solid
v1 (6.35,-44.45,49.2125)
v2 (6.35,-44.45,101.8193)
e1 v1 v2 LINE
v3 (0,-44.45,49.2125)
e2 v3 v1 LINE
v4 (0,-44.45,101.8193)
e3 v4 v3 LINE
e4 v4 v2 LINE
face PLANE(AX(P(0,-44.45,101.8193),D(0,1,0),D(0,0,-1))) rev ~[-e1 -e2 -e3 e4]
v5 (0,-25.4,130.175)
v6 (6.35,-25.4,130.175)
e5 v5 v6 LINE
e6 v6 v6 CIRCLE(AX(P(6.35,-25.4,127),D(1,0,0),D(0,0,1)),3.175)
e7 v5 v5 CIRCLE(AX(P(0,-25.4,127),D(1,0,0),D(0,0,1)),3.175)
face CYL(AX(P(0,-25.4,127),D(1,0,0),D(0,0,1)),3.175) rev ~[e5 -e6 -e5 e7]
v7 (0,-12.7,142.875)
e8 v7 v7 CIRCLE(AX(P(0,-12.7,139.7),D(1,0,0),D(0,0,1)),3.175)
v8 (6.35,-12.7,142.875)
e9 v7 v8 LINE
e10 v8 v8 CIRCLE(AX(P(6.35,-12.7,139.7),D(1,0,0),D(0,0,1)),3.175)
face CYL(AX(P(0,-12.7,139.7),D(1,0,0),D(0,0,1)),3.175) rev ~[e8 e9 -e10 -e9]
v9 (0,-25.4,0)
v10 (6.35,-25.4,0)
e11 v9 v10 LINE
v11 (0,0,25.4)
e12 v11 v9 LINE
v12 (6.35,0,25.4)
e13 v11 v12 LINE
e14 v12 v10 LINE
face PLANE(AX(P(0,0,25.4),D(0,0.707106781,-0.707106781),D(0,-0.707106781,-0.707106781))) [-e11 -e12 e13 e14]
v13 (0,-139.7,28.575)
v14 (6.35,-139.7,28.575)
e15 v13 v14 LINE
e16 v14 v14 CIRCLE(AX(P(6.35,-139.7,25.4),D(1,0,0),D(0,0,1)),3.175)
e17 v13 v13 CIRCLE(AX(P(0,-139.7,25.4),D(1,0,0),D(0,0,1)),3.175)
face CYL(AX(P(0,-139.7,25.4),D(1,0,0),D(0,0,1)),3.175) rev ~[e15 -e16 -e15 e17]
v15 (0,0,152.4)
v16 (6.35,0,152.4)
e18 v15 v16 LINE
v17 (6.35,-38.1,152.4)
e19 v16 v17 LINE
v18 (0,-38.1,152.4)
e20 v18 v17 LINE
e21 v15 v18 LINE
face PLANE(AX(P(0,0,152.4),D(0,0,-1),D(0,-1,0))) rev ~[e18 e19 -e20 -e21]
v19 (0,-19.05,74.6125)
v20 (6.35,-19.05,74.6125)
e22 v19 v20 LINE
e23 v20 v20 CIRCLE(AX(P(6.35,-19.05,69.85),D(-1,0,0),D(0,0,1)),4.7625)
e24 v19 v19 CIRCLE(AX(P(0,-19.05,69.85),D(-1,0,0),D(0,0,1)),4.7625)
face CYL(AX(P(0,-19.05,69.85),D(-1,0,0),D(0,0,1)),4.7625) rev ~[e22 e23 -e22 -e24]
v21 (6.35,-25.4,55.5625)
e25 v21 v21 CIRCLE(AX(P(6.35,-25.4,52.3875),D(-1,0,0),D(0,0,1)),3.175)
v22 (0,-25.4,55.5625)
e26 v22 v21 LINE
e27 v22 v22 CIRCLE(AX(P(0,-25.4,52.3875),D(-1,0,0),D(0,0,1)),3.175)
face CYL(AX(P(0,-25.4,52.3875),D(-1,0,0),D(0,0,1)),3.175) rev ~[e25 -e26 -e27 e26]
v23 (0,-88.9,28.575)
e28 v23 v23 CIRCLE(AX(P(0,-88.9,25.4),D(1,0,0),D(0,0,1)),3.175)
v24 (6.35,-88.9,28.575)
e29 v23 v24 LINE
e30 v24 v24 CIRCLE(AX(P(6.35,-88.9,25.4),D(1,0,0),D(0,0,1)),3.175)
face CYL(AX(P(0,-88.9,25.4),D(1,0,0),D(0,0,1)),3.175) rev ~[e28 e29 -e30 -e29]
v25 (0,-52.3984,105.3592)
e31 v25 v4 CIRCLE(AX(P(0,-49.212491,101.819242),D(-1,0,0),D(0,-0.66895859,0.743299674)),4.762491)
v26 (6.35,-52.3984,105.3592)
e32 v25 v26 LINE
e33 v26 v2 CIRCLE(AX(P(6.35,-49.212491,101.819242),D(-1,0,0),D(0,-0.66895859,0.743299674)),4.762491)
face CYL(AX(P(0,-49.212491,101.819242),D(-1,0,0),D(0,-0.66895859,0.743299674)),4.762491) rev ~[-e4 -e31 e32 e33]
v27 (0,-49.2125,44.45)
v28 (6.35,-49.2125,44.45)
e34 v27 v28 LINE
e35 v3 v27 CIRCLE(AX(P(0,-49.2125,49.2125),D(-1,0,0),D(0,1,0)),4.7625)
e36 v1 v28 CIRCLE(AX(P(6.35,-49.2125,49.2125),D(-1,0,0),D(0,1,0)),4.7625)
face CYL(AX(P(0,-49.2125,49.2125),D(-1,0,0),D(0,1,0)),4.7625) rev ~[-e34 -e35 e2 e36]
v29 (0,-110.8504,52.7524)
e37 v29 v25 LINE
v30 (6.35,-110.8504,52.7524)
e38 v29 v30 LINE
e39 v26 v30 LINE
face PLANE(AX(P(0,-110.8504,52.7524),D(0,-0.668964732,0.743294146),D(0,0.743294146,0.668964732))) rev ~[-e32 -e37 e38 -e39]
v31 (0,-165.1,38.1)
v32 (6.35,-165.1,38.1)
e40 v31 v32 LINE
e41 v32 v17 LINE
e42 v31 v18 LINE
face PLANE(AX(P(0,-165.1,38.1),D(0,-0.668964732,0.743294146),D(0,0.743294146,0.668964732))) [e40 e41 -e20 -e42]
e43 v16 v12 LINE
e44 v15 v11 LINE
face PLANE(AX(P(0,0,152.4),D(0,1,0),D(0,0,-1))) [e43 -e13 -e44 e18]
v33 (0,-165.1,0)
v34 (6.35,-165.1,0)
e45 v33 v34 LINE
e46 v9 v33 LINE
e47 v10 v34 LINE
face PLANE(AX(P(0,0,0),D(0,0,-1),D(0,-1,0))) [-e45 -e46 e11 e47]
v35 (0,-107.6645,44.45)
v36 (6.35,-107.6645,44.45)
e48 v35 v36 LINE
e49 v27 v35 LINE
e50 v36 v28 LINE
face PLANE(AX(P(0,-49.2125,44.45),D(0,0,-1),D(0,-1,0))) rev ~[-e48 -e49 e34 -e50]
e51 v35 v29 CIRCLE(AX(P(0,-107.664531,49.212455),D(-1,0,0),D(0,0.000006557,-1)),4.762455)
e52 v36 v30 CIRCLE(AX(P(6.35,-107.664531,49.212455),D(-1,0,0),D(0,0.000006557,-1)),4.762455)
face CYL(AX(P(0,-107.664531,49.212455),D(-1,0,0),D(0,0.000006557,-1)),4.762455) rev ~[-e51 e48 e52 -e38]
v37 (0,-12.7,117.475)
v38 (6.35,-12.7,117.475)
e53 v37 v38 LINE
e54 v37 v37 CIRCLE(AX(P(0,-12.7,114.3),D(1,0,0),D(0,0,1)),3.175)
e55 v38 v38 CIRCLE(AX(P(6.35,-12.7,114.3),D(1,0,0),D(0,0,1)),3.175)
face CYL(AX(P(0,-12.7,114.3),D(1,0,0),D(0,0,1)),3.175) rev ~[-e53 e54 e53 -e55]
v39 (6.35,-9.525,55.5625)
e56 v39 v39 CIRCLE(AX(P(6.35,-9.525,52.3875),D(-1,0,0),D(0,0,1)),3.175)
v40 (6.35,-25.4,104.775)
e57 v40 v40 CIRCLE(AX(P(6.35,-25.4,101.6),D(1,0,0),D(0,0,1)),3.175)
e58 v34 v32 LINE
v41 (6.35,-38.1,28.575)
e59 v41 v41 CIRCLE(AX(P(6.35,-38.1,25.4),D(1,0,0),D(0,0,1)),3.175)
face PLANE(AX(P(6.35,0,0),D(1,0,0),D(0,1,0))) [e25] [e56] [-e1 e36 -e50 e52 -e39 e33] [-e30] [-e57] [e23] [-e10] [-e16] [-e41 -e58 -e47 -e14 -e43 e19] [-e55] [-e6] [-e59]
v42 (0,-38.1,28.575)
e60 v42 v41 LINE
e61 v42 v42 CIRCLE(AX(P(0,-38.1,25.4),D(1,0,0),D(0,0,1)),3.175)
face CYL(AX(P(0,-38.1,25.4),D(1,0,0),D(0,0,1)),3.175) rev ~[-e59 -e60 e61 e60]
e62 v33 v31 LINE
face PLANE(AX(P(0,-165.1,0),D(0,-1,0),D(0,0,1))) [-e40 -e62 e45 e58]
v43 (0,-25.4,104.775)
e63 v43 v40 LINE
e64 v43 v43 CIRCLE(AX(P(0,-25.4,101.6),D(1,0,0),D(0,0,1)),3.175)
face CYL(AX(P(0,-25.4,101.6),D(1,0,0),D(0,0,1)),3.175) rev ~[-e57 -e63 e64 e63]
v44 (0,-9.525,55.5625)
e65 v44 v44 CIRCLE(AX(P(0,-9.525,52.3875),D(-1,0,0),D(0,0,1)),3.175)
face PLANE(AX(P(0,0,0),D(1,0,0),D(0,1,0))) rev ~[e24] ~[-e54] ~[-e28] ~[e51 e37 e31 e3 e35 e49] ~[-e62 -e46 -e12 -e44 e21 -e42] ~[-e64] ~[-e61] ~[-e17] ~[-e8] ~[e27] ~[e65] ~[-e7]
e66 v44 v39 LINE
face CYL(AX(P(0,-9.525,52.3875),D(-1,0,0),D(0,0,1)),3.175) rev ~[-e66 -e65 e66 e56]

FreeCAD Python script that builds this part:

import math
import FreeCAD as App
import Part
import Sketcher

V = App.Vector
Q = App.Units.Quantity


def add_polygon(sketch, points):
    """Adds a closed chain of lines whose ends are joined by coincident constraints."""
    first, n = sketch.GeometryCount, len(points)
    for a, b in zip(points, points[1:] + points[:1]):
        sketch.addGeometry(Part.LineSegment(App.Vector(*a, 0), App.Vector(*b, 0)), False)
    for i in range(n):
        sketch.addConstraint(Sketcher.Constraint("Coincident", first + i, 2, first + (i + 1) % n, 1))

doc = App.newDocument("Part")
body = doc.addObject("PartDesign::Body", "Body")

# Sketch on YZ plane
sketch1 = body.newObject("Sketcher::SketchObject", "Sketch")
sketch1.AttachmentSupport = (doc.getObject("YZ_Plane"), [""])
sketch1.MapMode = "FlatFace"
add_polygon(sketch1, [(0, 0), (0, 152), (-38, 152), (-165, 38), (-165, 0)])  # lines 0-4
sketch1.addConstraint([
    Sketcher.Constraint("Vertical", 0),
    Sketcher.Constraint("Horizontal", 1),
    Sketcher.Constraint("Vertical", 3),
    Sketcher.Constraint("Horizontal", 4),
    Sketcher.Constraint("Coincident", 4, 2, -1, 1),
    Sketcher.Constraint("Equal", 1, 3),
    Sketcher.Constraint("DistanceY", 0, 1, 0, 2, Q("6 in")),
    Sketcher.Constraint("DistanceX", 1, 2, 1, 1, Q("1.5 in")),
    Sketcher.Constraint("DistanceX", 4, 1, 4, 2, Q("6.5 in")),
])
pad1 = body.newObject("PartDesign::Pad", "Pad")
pad1.Profile = sketch1
pad1.Length = Q("0.25 in")

# Sketch on YZ plane
sketch2 = body.newObject("Sketcher::SketchObject", "Sketch001")
sketch2.AttachmentSupport = (doc.getObject("YZ_Plane"), [""])
sketch2.MapMode = "FlatFace"
sketch2.addGeometry([
    Part.Circle(V(-139.7, 25.4, 0), V(0, 0, 1), 3.2),
    Part.Circle(V(-88.9, 25.4, 0), V(0, 0, 1), 3.2),
    Part.Circle(V(-38.1, 25.4, 0), V(0, 0, 1), 3.2),
], False)
sketch2.addConstraint([
    Sketcher.Constraint("Equal", 0, 1),
    Sketcher.Constraint("Equal", 1, 2),
    Sketcher.Constraint("Horizontal", 0, 3, 1, 3),
    Sketcher.Constraint("Horizontal", 1, 3, 2, 3),
    Sketcher.Constraint("Diameter", 0, Q("0.25 in")),
    Sketcher.Constraint("DistanceY", -1, 1, 0, 3, Q("1 in")),
    Sketcher.Constraint("DistanceX", 0, 3, 1, 3, Q("2 in")),
    Sketcher.Constraint("DistanceX", 1, 3, 2, 3, Q("2 in")),
    Sketcher.Constraint("DistanceX", 0, 3, -1, 1, Q("5.5 in")),
])
doc.recompute()
hole = body.newObject("PartDesign::Hole", "Hole")
hole.Profile = sketch2
hole.ThreadType = "None"
hole.Diameter = Q("0.25 in")
hole.DepthType = "ThroughAll"
hole.Reversed = True

# Sketch on YZ plane
sketch3 = body.newObject("Sketcher::SketchObject", "Sketch002")
sketch3.AttachmentSupport = (doc.getObject("YZ_Plane"), [""])
sketch3.MapMode = "FlatFace"
add_polygon(sketch3, [(0, 0), (-25, 0), (0, 25)])  # lines 0-2
sketch3.addConstraint([
    Sketcher.Constraint("Horizontal", 0),
    Sketcher.Constraint("Vertical", 2),
    Sketcher.Constraint("Coincident", 2, 2, -1, 1),
    Sketcher.Constraint("Equal", 0, 2),
    Sketcher.Constraint("DistanceX", 0, 2, 0, 1, Q("1 in")),
])
pocket1 = body.newObject("PartDesign::Pocket", "Pocket")
pocket1.Profile = sketch3
pocket1.Length = Q("0.25 in")
pocket1.Reversed = True

# Sketch on YZ plane
sketch4 = body.newObject("Sketcher::SketchObject", "Sketch003")
sketch4.AttachmentSupport = (doc.getObject("YZ_Plane"), [""])
sketch4.MapMode = "FlatFace"
sketch4.addGeometry([
    Part.Circle(V(-12.7, 139.7, 0), V(0, 0, 1), 3.2),
    Part.Circle(V(-25.4, 127, 0), V(0, 0, 1), 3.2),
    Part.Circle(V(-12.7, 114.3, 0), V(0, 0, 1), 3.2),
    Part.Circle(V(-25.4, 101.6, 0), V(0, 0, 1), 3.2),
], False)
sketch4.addConstraint([
    Sketcher.Constraint("Equal", 0, 1),
    Sketcher.Constraint("Equal", 1, 2),
    Sketcher.Constraint("Equal", 2, 3),
    Sketcher.Constraint("Vertical", 0, 3, 2, 3),
    Sketcher.Constraint("Vertical", 1, 3, 3, 3),
    Sketcher.Constraint("Diameter", 0, Q("0.25 in")),
    Sketcher.Constraint("DistanceX", 1, 3, -1, 1, Q("1 in")),
    Sketcher.Constraint("DistanceY", -1, 1, 1, 3, Q("5 in")),
    Sketcher.Constraint("DistanceY", -1, 1, 3, 3, Q("4 in")),
    Sketcher.Constraint("DistanceY", 2, 3, 0, 3, Q("1 in")),
    Sketcher.Constraint("DistanceX", 0, 3, -1, 1, Q("0.5 in")),
    Sketcher.Constraint("DistanceY", -1, 1, 0, 3, Q("5.5 in")),
])
doc.recompute()
hole2 = body.newObject("PartDesign::Hole", "Hole001")
hole2.Profile = sketch4
hole2.ThreadType = "None"
hole2.Diameter = Q("0.25 in")
hole2.DepthType = "ThroughAll"
hole2.Reversed = True

# Sketch on YZ plane
sketch5 = body.newObject("Sketcher::SketchObject", "Sketch004")
sketch5.AttachmentSupport = (doc.getObject("YZ_Plane"), [""])
sketch5.MapMode = "FlatFace"
sketch5.addGeometry([
    Part.Circle(V(-19.1, 69.8, 0), V(0, 0, 1), 4.8),
    Part.Circle(V(-25.4, 52.4, 0), V(0, 0, 1), 3.2),
    Part.Circle(V(-9.5, 52.4, 0), V(0, 0, 1), 3.2),
], False)
sketch5.addConstraint([
    Sketcher.Constraint("Equal", 1, 2),
    Sketcher.Constraint("Horizontal", 1, 3, 2, 3),
    Sketcher.Constraint("Diameter", 1, Q("0.25 in")),
    Sketcher.Constraint("Diameter", 0, Q("0.375 in")),
    Sketcher.Constraint("DistanceX", 1, 3, -1, 1, Q("1 in")),
    Sketcher.Constraint("DistanceX", 0, 3, -1, 1, Q("0.75 in")),
    Sketcher.Constraint("DistanceY", -1, 1, 0, 3, Q("2.75 in")),
    Sketcher.Constraint("DistanceY", -1, 1, 1, 3, Q("2.0625 in")),
    Sketcher.Constraint("DistanceX", 2, 3, -1, 1, Q("0.375 in")),
])
pocket2 = body.newObject("PartDesign::Pocket", "Pocket001")
pocket2.Profile = sketch5
pocket2.Length = Q("0.25 in")
pocket2.Reversed = True

# Sketch on YZ plane
sketch6 = body.newObject("Sketcher::SketchObject", "Sketch005")
sketch6.AttachmentSupport = (doc.getObject("YZ_Plane"), [""])
sketch6.MapMode = "FlatFace"
sketch6.addGeometry([
    Part.ArcOfCircle(Part.Circle(V(-49.2, 101.8, 0), V(0, 0, 1), 4.8), math.radians(0), math.radians(132)),  # 0
    Part.LineSegment(V(-44.5, 101.8, 0), V(-44.5, 49.2, 0)),  # 1
    Part.ArcOfCircle(Part.Circle(V(-49.2, 49.2, 0), V(0, 0, 1), 4.8), math.radians(-90), math.radians(0)),  # 2
    Part.LineSegment(V(-49.2, 44.5, 0), V(-107.7, 44.5, 0)),  # 3
    Part.ArcOfCircle(Part.Circle(V(-107.7, 49.2, 0), V(0, 0, 1), 4.8), math.radians(132), math.radians(270)),  # 4
    Part.LineSegment(V(-110.9, 52.8, 0), V(-52.4, 105.4, 0)),  # 5
], False)
sketch6.addConstraint([
    Sketcher.Constraint("Tangent", 0, 1, 1, 1),
    Sketcher.Constraint("Tangent", 1, 2, 2, 2),
    Sketcher.Constraint("Tangent", 2, 1, 3, 1),
    Sketcher.Constraint("Tangent", 3, 2, 4, 2),
    Sketcher.Constraint("Tangent", 4, 1, 5, 1),
    Sketcher.Constraint("Tangent", 5, 2, 0, 2),
    Sketcher.Constraint("Vertical", 1),
    Sketcher.Constraint("Horizontal", 3),
    Sketcher.Constraint("Equal", 0, 2),
    Sketcher.Constraint("Equal", 2, 4),
    Sketcher.Constraint("Radius", 0, Q("0.1875 in")),
    Sketcher.Constraint("DistanceX", 0, 1, -1, 1, Q("1.75 in")),
    Sketcher.Constraint("DistanceY", -1, 1, 2, 1, Q("1.75 in")),
    Sketcher.Constraint("DistanceY", -1, 1, 5, 2, Q("4.148 in")),
    Sketcher.Constraint("DistanceX", 3, 2, 3, 1, Q("58.452 mm")),
])
pocket3 = body.newObject("PartDesign::Pocket", "Pocket002")
pocket3.Profile = sketch6
pocket3.Length = Q("1 in")
pocket3.Reversed = True

doc.recompute()
